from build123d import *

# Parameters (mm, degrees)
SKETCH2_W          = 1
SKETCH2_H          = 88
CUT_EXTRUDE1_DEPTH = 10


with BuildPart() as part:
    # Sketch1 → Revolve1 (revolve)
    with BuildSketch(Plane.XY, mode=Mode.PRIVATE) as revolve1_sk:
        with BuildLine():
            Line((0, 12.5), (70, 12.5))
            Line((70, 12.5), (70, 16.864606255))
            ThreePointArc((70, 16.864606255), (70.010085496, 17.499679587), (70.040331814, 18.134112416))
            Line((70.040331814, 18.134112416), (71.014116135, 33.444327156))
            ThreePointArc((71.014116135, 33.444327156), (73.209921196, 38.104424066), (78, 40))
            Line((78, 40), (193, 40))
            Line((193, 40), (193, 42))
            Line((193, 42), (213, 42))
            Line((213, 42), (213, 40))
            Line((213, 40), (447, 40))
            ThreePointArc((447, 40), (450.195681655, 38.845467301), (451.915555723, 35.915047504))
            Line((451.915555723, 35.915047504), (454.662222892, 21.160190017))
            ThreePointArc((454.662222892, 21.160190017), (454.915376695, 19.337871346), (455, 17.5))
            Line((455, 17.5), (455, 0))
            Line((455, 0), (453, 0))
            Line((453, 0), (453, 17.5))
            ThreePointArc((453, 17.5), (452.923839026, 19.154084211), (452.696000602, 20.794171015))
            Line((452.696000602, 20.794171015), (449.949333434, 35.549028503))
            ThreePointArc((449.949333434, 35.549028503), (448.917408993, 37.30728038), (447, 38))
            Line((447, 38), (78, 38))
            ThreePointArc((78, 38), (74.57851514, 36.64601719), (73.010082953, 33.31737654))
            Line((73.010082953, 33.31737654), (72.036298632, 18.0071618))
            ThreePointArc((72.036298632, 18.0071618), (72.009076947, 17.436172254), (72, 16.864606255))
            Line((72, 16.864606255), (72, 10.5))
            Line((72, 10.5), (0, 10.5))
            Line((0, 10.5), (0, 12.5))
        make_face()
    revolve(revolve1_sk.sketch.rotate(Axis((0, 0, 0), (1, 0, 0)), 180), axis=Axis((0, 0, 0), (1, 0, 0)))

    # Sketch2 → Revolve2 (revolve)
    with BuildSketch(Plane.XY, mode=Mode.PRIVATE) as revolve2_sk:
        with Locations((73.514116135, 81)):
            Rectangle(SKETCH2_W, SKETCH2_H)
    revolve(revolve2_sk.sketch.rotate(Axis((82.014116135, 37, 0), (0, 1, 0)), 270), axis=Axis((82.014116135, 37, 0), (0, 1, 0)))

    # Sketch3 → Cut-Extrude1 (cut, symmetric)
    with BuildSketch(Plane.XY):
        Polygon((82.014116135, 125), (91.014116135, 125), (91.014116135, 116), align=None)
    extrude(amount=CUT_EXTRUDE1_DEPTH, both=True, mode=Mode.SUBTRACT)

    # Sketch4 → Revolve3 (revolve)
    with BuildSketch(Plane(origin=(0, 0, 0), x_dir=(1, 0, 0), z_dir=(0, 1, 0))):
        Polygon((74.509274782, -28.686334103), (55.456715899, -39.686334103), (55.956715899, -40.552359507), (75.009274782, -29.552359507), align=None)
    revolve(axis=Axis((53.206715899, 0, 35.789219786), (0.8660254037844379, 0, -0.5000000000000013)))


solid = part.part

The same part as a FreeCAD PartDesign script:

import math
import FreeCAD as App
import Part
import Sketcher
from FreeCAD import Vector
Q = App.Units.Quantity

doc = App.newDocument("Part")
params = doc.addObject("Spreadsheet::Sheet", "Params")
for row, (alias, value) in enumerate([
    ("sketch1_radius", "18.000001 mm"),
    ("sketch1_radius2", "5 mm"),
    ("sketch1_radius3", "3 mm"),
    ("sketch1_width", "70 mm"),
    ("sketch1_width2", "369 mm"),
    ("revolution_angle", "360 deg"),
    ("sketch2_width", "1 mm"),
    ("sketch2_height", "88 mm"),
    ("revolution2_angle", "360 deg"),
    ("sketch3_width", "9 mm"),
    ("pocket1_length", "20 mm"),
    ("sketch4_length", "22 mm"),
    ("sketch4_length2", "1 mm"),
    ("revolution3_angle", "360 deg"),
], start=1):
    params.set(f"A{row}", alias)
    params.set(f"B{row}", "=" + value)
    params.setAlias(f"B{row}", alias)

body = doc.addObject("PartDesign::Body", "Body")

sketch1 = body.newObject("Sketcher::SketchObject", "Sketch")
sketch1.AttachmentSupport = (doc.getObject("XY_Plane"), [""])
sketch1.MapMode = "FlatFace"
sketch1.addGeometry([
    Part.LineSegment(Vector(70, 12.5, 0), Vector(0, 12.5, 0)),
    Part.LineSegment(Vector(0, 12.5, 0), Vector(0, 10.5, 0)),
    Part.LineSegment(Vector(0, 10.5, 0), Vector(72, 10.5, 0)),
    Part.LineSegment(Vector(72, 10.5, 0), Vector(72, 16.864606, 0)),
    Part.ArcOfCircle(Part.Circle(Vector(90.000001, 16.864606, 0), Vector(0, 0, 1), 18.000001), math.radians(176.360686), math.radians(180)),
    Part.LineSegment(Vector(72.036299, 18.007162, 0), Vector(73.010083, 33.317377, 0)),
    Part.ArcOfCircle(Part.Circle(Vector(78, 33, 0), Vector(0, 0, 1), 5), math.radians(90), math.radians(176.360686)),
    Part.LineSegment(Vector(78, 38, 0), Vector(447, 38, 0)),
    Part.ArcOfCircle(Part.Circle(Vector(447, 35, 0), Vector(0, 0, 1), 3), math.radians(10.545104), math.radians(90)),
    Part.LineSegment(Vector(449.949333, 35.549029, 0), Vector(452.696001, 20.794171, 0)),
    Part.ArcOfCircle(Part.Circle(Vector(435, 17.5, 0), Vector(0, 0, 1), 18), math.radians(0), math.radians(10.545104)),
    Part.LineSegment(Vector(453, 17.5, 0), Vector(453, 0, 0)),
    Part.LineSegment(Vector(453, 0, 0), Vector(455, 0, 0)),
    Part.LineSegment(Vector(455, 0, 0), Vector(455, 17.5, 0)),
    Part.ArcOfCircle(Part.Circle(Vector(435, 17.5, 0), Vector(0, 0, 1), 20), math.radians(0), math.radians(10.545104)),
    Part.LineSegment(Vector(454.662223, 21.16019, 0), Vector(451.915556, 35.915048, 0)),
    Part.ArcOfCircle(Part.Circle(Vector(447, 35, 0), Vector(0, 0, 1), 5), math.radians(10.545104), math.radians(90)),
    Part.LineSegment(Vector(447, 40, 0), Vector(213, 40, 0)),
    Part.LineSegment(Vector(213, 40, 0), Vector(213, 42, 0)),
    Part.LineSegment(Vector(213, 42, 0), Vector(193, 42, 0)),
    Part.LineSegment(Vector(193, 42, 0), Vector(193, 40, 0)),
    Part.LineSegment(Vector(193, 40, 0), Vector(78, 40, 0)),
    Part.ArcOfCircle(Part.Circle(Vector(78, 33, 0), Vector(0, 0, 1), 7), math.radians(90), math.radians(176.360686)),
    Part.LineSegment(Vector(71.014116, 33.444327, 0), Vector(70.040332, 18.134112, 0)),
    Part.ArcOfCircle(Part.Circle(Vector(89.999999, 16.864606, 0), Vector(0, 0, 1), 19.999999), math.radians(176.360686), math.radians(180)),
    Part.LineSegment(Vector(70, 16.864606, 0), Vector(70, 12.5, 0)),
], False)
sketch1.addConstraint([
    Sketcher.Constraint("Coincident", 0, 2, 1, 1),
    Sketcher.Constraint("Coincident", 1, 2, 2, 1),
    Sketcher.Constraint("Coincident", 2, 2, 3, 1),
    Sketcher.Constraint("Tangent", 3, 2, 4, 2),
    Sketcher.Constraint("Tangent", 4, 1, 5, 1),
    Sketcher.Constraint("Tangent", 5, 2, 6, 2),
    Sketcher.Constraint("Tangent", 6, 1, 7, 1),
    Sketcher.Constraint("Tangent", 7, 2, 8, 2),
    Sketcher.Constraint("Tangent", 8, 1, 9, 1),
    Sketcher.Constraint("Tangent", 9, 2, 10, 2),
    Sketcher.Constraint("Tangent", 10, 1, 11, 1),
    Sketcher.Constraint("Coincident", 11, 2, 12, 1),
    Sketcher.Constraint("Coincident", 12, 2, 13, 1),
    Sketcher.Constraint("Tangent", 13, 2, 14, 1),
    Sketcher.Constraint("Tangent", 14, 2, 15, 1),
    Sketcher.Constraint("Tangent", 15, 2, 16, 1),
    Sketcher.Constraint("Tangent", 16, 2, 17, 1),
    Sketcher.Constraint("Coincident", 17, 2, 18, 1),
    Sketcher.Constraint("Coincident", 18, 2, 19, 1),
    Sketcher.Constraint("Coincident", 19, 2, 20, 1),
    Sketcher.Constraint("Coincident", 20, 2, 21, 1),
    Sketcher.Constraint("Tangent", 21, 2, 22, 1),
    Sketcher.Constraint("Tangent", 22, 2, 23, 1),
    Sketcher.Constraint("Tangent", 23, 2, 24, 1),
    Sketcher.Constraint("Tangent", 24, 2, 25, 1),
    Sketcher.Constraint("Coincident", 25, 2, 0, 1),
    Sketcher.Constraint("Horizontal", 0),
    Sketcher.Constraint("Vertical", 1),
    Sketcher.Constraint("Horizontal", 2),
    Sketcher.Constraint("Vertical", 3),
    Sketcher.Constraint("Horizontal", 7),
    Sketcher.Constraint("Vertical", 11),
    Sketcher.Constraint("Horizontal", 12),
    Sketcher.Constraint("Vertical", 13),
    Sketcher.Constraint("Horizontal", 17),
    Sketcher.Constraint("Vertical", 18),
    Sketcher.Constraint("Horizontal", 19),
    Sketcher.Constraint("Vertical", 20),
    Sketcher.Constraint("Horizontal", 21),
    Sketcher.Constraint("Vertical", 25),
    Sketcher.Constraint("Coincident", 14, 3, 10, 3),
    Sketcher.Constraint("Coincident", 16, 3, 8, 3),
    Sketcher.Constraint("Coincident", 22, 3, 6, 3),
    Sketcher.Constraint("Coincident", 24, 3, 4, 3),
    Sketcher.Constraint("Equal", 4, 10),
    Sketcher.Constraint("Equal", 6, 16),
    Sketcher.Constraint("Equal", 14, 24),
    Sketcher.Constraint("PointOnObject", 0, 2, -2),
    Sketcher.Constraint("PointOnObject", 11, 2, -1),
    Sketcher.Constraint("Parallel", 9, 15),
    Sketcher.Constraint("Parallel", 5, 23),
    Sketcher.Constraint("Equal", 12, 1),
    Sketcher.Constraint("Equal", 1, 18),
    Sketcher.Constraint("Radius", 4, 18.000001),
    Sketcher.Constraint("Radius", 6, 5.0),
    Sketcher.Constraint("Radius", 8, 3.0),
    Sketcher.Constraint("DistanceX", 0, 2, 0, 1, 70.0),
    Sketcher.Constraint("DistanceX", 7, 1, 7, 2, 369.0),
    Sketcher.Constraint("DistanceX", 17, 2, 17, 1, 234.0),
    Sketcher.Constraint("DistanceX", 19, 2, 19, 1, 20.0),
    Sketcher.Constraint("DistanceY", 11, 2, 11, 1, 17.5),
    Sketcher.Constraint("DistanceX", -1, 1, 6, 3, 78.0),
    Sketcher.Constraint("DistanceY", -1, 1, 6, 3, 33.0),
    Sketcher.Constraint("DistanceX", -1, 1, 10, 3, 435.0),
    Sketcher.Constraint("DistanceY", 0, 2, 14, 3, 5.0),
    Sketcher.Constraint("Distance", 5, 15.341152),
])
sketch1.setExpression("Constraints[53]", "Params.sketch1_radius")
sketch1.setExpression("Constraints[54]", "Params.sketch1_radius2")
sketch1.setExpression("Constraints[55]", "Params.sketch1_radius3")
sketch1.setExpression("Constraints[56]", "Params.sketch1_width")
sketch1.setExpression("Constraints[57]", "Params.sketch1_width2")
revolution = body.newObject("PartDesign::Revolution", "Revolution")
revolution.Profile = sketch1
revolution.ReferenceAxis = (sketch1, ["H_Axis"])
revolution.setExpression("Angle", "Params.revolution_angle")

sketch2 = body.newObject("Sketcher::SketchObject", "Sketch001")
sketch2.AttachmentSupport = (doc.getObject("XY_Plane"), [""])
sketch2.MapMode = "FlatFace"
sketch2.addGeometry([
    Part.LineSegment(Vector(73.014116, 125, 0), Vector(73.014116, 37, 0)),
    Part.LineSegment(Vector(73.014116, 37, 0), Vector(74.014116, 37, 0)),
    Part.LineSegment(Vector(74.014116, 37, 0), Vector(74.014116, 125, 0)),
    Part.LineSegment(Vector(74.014116, 125, 0), Vector(73.014116, 125, 0)),
], False)
sketch2.addGeometry(Part.LineSegment(Vector(82.014116, 37, 0), Vector(82.014116, 125, 0)), True)
sketch2.addConstraint([
    Sketcher.Constraint("Coincident", 0, 2, 1, 1),
    Sketcher.Constraint("Coincident", 1, 2, 2, 1),
    Sketcher.Constraint("Coincident", 2, 2, 3, 1),
    Sketcher.Constraint("Coincident", 3, 2, 0, 1),
    Sketcher.Constraint("Vertical", 0),
    Sketcher.Constraint("Horizontal", 1),
    Sketcher.Constraint("Vertical", 2),
    Sketcher.Constraint("Horizontal", 3),
    Sketcher.Constraint("Vertical", 4),
    Sketcher.Constraint("Horizontal", 1, 2, 4, 1),
    Sketcher.Constraint("Horizontal", 3, 2, 4, 2),
    Sketcher.Constraint("DistanceX", 1, 1, 1, 2, 1.0),
    Sketcher.Constraint("DistanceY", 0, 2, 0, 1, 88.0),
    Sketcher.Constraint("DistanceY", -1, 1, 0, 2, 37.0),
    Sketcher.Constraint("DistanceX", 1, 2, 4, 1, 8.0),
    Sketcher.Constraint("DistanceX", -1, 1, 0, 2, 73.014116),
])
sketch2.setExpression("Constraints[11]", "Params.sketch2_width")
sketch2.setExpression("Constraints[12]", "Params.sketch2_height")
revolution2 = body.newObject("PartDesign::Revolution", "Revolution001")
revolution2.Profile = sketch2
revolution2.ReferenceAxis = (sketch2, ["Axis0"])
revolution2.setExpression("Angle", "Params.revolution2_angle")

sketch3 = body.newObject("Sketcher::SketchObject", "Sketch002")
sketch3.AttachmentSupport = (doc.getObject("XY_Plane"), [""])
sketch3.MapMode = "FlatFace"
sketch3.addGeometry([
    Part.LineSegment(Vector(91.014116, 125, 0), Vector(82.014116, 125, 0)),
    Part.LineSegment(Vector(82.014116, 125, 0), Vector(91.014116, 116, 0)),
    Part.LineSegment(Vector(91.014116, 116, 0), Vector(91.014116, 125, 0)),
], False)
sketch3.addConstraint([
    Sketcher.Constraint("Coincident", 0, 2, 1, 1),
    Sketcher.Constraint("Coincident", 1, 2, 2, 1),
    Sketcher.Constraint("Coincident", 2, 2, 0, 1),
    Sketcher.Constraint("Horizontal", 0),
    Sketcher.Constraint("Vertical", 2),
    Sketcher.Constraint("Equal", 0, 2),
    Sketcher.Constraint("DistanceX", 0, 2, 0, 1, 9.0),
    Sketcher.Constraint("DistanceY", -1, 1, 0, 2, 125.0),
    Sketcher.Constraint("DistanceX", -1, 1, 0, 2, 82.014116),
])
sketch3.setExpression("Constraints[6]", "Params.sketch3_width")
pocket1 = body.newObject("PartDesign::Pocket", "Pocket")
pocket1.Profile = sketch3
pocket1.setExpression("Length", "Params.pocket1_length")
pocket1.Midplane = True

sketch4 = body.newObject("Sketcher::SketchObject", "Sketch003")
sketch4.AttachmentSupport = (doc.getObject("XZ_Plane"), [""])
sketch4.MapMode = "FlatFace"
sketch4.addGeometry([
    Part.LineSegment(Vector(74.509275, 28.686334, 0), Vector(55.456716, 39.686334, 0)),
    Part.LineSegment(Vector(55.456716, 39.686334, 0), Vector(55.956716, 40.55236, 0)),
    Part.LineSegment(Vector(55.956716, 40.55236, 0), Vector(75.009275, 29.55236, 0)),
    Part.LineSegment(Vector(75.009275, 29.55236, 0), Vector(74.509275, 28.686334, 0)),
], False)
sketch4.addGeometry(Part.LineSegment(Vector(53.206716, 35.78922, 0), Vector(72.259275, 24.78922, 0)), True)
sketch4.addConstraint([
    Sketcher.Constraint("Coincident", 0, 2, 1, 1),
    Sketcher.Constraint("Coincident", 1, 2, 2, 1),
    Sketcher.Constraint("Coincident", 2, 2, 3, 1),
    Sketcher.Constraint("Coincident", 3, 2, 0, 1),
    Sketcher.Constraint("Perpendicular", 0, 1),
    Sketcher.Constraint("Perpendicular", 1, 2),
    Sketcher.Constraint("Perpendicular", 2, 3),
    Sketcher.Constraint("Perpendicular", 3, 4),
    Sketcher.Constraint("Equal", 2, 4),
    Sketcher.Constraint("Angle", 0, Q("150 deg")),
    Sketcher.Constraint("Distance", 0, 22.0),
    Sketcher.Constraint("Distance", 1, 1.0),
    Sketcher.Constraint("DistanceX", 4, 1, 0, 2, 2.25),
    Sketcher.Constraint("DistanceY", -1, 1, 1, 2, 40.55236),
    Sketcher.Constraint("DistanceY", -1, 1, 4, 1, 35.78922),
    Sketcher.Constraint("DistanceX", -1, 1, 0, 2, 55.456716),
])
sketch4.setExpression("Constraints[10]", "Params.sketch4_length")
sketch4.setExpression("Constraints[11]", "Params.sketch4_length2")
revolution3 = body.newObject("PartDesign::Revolution", "Revolution002")
revolution3.Profile = sketch4
revolution3.ReferenceAxis = (sketch4, ["Axis0"])
revolution3.setExpression("Angle", "Params.revolution3_angle")

doc.recompute()
